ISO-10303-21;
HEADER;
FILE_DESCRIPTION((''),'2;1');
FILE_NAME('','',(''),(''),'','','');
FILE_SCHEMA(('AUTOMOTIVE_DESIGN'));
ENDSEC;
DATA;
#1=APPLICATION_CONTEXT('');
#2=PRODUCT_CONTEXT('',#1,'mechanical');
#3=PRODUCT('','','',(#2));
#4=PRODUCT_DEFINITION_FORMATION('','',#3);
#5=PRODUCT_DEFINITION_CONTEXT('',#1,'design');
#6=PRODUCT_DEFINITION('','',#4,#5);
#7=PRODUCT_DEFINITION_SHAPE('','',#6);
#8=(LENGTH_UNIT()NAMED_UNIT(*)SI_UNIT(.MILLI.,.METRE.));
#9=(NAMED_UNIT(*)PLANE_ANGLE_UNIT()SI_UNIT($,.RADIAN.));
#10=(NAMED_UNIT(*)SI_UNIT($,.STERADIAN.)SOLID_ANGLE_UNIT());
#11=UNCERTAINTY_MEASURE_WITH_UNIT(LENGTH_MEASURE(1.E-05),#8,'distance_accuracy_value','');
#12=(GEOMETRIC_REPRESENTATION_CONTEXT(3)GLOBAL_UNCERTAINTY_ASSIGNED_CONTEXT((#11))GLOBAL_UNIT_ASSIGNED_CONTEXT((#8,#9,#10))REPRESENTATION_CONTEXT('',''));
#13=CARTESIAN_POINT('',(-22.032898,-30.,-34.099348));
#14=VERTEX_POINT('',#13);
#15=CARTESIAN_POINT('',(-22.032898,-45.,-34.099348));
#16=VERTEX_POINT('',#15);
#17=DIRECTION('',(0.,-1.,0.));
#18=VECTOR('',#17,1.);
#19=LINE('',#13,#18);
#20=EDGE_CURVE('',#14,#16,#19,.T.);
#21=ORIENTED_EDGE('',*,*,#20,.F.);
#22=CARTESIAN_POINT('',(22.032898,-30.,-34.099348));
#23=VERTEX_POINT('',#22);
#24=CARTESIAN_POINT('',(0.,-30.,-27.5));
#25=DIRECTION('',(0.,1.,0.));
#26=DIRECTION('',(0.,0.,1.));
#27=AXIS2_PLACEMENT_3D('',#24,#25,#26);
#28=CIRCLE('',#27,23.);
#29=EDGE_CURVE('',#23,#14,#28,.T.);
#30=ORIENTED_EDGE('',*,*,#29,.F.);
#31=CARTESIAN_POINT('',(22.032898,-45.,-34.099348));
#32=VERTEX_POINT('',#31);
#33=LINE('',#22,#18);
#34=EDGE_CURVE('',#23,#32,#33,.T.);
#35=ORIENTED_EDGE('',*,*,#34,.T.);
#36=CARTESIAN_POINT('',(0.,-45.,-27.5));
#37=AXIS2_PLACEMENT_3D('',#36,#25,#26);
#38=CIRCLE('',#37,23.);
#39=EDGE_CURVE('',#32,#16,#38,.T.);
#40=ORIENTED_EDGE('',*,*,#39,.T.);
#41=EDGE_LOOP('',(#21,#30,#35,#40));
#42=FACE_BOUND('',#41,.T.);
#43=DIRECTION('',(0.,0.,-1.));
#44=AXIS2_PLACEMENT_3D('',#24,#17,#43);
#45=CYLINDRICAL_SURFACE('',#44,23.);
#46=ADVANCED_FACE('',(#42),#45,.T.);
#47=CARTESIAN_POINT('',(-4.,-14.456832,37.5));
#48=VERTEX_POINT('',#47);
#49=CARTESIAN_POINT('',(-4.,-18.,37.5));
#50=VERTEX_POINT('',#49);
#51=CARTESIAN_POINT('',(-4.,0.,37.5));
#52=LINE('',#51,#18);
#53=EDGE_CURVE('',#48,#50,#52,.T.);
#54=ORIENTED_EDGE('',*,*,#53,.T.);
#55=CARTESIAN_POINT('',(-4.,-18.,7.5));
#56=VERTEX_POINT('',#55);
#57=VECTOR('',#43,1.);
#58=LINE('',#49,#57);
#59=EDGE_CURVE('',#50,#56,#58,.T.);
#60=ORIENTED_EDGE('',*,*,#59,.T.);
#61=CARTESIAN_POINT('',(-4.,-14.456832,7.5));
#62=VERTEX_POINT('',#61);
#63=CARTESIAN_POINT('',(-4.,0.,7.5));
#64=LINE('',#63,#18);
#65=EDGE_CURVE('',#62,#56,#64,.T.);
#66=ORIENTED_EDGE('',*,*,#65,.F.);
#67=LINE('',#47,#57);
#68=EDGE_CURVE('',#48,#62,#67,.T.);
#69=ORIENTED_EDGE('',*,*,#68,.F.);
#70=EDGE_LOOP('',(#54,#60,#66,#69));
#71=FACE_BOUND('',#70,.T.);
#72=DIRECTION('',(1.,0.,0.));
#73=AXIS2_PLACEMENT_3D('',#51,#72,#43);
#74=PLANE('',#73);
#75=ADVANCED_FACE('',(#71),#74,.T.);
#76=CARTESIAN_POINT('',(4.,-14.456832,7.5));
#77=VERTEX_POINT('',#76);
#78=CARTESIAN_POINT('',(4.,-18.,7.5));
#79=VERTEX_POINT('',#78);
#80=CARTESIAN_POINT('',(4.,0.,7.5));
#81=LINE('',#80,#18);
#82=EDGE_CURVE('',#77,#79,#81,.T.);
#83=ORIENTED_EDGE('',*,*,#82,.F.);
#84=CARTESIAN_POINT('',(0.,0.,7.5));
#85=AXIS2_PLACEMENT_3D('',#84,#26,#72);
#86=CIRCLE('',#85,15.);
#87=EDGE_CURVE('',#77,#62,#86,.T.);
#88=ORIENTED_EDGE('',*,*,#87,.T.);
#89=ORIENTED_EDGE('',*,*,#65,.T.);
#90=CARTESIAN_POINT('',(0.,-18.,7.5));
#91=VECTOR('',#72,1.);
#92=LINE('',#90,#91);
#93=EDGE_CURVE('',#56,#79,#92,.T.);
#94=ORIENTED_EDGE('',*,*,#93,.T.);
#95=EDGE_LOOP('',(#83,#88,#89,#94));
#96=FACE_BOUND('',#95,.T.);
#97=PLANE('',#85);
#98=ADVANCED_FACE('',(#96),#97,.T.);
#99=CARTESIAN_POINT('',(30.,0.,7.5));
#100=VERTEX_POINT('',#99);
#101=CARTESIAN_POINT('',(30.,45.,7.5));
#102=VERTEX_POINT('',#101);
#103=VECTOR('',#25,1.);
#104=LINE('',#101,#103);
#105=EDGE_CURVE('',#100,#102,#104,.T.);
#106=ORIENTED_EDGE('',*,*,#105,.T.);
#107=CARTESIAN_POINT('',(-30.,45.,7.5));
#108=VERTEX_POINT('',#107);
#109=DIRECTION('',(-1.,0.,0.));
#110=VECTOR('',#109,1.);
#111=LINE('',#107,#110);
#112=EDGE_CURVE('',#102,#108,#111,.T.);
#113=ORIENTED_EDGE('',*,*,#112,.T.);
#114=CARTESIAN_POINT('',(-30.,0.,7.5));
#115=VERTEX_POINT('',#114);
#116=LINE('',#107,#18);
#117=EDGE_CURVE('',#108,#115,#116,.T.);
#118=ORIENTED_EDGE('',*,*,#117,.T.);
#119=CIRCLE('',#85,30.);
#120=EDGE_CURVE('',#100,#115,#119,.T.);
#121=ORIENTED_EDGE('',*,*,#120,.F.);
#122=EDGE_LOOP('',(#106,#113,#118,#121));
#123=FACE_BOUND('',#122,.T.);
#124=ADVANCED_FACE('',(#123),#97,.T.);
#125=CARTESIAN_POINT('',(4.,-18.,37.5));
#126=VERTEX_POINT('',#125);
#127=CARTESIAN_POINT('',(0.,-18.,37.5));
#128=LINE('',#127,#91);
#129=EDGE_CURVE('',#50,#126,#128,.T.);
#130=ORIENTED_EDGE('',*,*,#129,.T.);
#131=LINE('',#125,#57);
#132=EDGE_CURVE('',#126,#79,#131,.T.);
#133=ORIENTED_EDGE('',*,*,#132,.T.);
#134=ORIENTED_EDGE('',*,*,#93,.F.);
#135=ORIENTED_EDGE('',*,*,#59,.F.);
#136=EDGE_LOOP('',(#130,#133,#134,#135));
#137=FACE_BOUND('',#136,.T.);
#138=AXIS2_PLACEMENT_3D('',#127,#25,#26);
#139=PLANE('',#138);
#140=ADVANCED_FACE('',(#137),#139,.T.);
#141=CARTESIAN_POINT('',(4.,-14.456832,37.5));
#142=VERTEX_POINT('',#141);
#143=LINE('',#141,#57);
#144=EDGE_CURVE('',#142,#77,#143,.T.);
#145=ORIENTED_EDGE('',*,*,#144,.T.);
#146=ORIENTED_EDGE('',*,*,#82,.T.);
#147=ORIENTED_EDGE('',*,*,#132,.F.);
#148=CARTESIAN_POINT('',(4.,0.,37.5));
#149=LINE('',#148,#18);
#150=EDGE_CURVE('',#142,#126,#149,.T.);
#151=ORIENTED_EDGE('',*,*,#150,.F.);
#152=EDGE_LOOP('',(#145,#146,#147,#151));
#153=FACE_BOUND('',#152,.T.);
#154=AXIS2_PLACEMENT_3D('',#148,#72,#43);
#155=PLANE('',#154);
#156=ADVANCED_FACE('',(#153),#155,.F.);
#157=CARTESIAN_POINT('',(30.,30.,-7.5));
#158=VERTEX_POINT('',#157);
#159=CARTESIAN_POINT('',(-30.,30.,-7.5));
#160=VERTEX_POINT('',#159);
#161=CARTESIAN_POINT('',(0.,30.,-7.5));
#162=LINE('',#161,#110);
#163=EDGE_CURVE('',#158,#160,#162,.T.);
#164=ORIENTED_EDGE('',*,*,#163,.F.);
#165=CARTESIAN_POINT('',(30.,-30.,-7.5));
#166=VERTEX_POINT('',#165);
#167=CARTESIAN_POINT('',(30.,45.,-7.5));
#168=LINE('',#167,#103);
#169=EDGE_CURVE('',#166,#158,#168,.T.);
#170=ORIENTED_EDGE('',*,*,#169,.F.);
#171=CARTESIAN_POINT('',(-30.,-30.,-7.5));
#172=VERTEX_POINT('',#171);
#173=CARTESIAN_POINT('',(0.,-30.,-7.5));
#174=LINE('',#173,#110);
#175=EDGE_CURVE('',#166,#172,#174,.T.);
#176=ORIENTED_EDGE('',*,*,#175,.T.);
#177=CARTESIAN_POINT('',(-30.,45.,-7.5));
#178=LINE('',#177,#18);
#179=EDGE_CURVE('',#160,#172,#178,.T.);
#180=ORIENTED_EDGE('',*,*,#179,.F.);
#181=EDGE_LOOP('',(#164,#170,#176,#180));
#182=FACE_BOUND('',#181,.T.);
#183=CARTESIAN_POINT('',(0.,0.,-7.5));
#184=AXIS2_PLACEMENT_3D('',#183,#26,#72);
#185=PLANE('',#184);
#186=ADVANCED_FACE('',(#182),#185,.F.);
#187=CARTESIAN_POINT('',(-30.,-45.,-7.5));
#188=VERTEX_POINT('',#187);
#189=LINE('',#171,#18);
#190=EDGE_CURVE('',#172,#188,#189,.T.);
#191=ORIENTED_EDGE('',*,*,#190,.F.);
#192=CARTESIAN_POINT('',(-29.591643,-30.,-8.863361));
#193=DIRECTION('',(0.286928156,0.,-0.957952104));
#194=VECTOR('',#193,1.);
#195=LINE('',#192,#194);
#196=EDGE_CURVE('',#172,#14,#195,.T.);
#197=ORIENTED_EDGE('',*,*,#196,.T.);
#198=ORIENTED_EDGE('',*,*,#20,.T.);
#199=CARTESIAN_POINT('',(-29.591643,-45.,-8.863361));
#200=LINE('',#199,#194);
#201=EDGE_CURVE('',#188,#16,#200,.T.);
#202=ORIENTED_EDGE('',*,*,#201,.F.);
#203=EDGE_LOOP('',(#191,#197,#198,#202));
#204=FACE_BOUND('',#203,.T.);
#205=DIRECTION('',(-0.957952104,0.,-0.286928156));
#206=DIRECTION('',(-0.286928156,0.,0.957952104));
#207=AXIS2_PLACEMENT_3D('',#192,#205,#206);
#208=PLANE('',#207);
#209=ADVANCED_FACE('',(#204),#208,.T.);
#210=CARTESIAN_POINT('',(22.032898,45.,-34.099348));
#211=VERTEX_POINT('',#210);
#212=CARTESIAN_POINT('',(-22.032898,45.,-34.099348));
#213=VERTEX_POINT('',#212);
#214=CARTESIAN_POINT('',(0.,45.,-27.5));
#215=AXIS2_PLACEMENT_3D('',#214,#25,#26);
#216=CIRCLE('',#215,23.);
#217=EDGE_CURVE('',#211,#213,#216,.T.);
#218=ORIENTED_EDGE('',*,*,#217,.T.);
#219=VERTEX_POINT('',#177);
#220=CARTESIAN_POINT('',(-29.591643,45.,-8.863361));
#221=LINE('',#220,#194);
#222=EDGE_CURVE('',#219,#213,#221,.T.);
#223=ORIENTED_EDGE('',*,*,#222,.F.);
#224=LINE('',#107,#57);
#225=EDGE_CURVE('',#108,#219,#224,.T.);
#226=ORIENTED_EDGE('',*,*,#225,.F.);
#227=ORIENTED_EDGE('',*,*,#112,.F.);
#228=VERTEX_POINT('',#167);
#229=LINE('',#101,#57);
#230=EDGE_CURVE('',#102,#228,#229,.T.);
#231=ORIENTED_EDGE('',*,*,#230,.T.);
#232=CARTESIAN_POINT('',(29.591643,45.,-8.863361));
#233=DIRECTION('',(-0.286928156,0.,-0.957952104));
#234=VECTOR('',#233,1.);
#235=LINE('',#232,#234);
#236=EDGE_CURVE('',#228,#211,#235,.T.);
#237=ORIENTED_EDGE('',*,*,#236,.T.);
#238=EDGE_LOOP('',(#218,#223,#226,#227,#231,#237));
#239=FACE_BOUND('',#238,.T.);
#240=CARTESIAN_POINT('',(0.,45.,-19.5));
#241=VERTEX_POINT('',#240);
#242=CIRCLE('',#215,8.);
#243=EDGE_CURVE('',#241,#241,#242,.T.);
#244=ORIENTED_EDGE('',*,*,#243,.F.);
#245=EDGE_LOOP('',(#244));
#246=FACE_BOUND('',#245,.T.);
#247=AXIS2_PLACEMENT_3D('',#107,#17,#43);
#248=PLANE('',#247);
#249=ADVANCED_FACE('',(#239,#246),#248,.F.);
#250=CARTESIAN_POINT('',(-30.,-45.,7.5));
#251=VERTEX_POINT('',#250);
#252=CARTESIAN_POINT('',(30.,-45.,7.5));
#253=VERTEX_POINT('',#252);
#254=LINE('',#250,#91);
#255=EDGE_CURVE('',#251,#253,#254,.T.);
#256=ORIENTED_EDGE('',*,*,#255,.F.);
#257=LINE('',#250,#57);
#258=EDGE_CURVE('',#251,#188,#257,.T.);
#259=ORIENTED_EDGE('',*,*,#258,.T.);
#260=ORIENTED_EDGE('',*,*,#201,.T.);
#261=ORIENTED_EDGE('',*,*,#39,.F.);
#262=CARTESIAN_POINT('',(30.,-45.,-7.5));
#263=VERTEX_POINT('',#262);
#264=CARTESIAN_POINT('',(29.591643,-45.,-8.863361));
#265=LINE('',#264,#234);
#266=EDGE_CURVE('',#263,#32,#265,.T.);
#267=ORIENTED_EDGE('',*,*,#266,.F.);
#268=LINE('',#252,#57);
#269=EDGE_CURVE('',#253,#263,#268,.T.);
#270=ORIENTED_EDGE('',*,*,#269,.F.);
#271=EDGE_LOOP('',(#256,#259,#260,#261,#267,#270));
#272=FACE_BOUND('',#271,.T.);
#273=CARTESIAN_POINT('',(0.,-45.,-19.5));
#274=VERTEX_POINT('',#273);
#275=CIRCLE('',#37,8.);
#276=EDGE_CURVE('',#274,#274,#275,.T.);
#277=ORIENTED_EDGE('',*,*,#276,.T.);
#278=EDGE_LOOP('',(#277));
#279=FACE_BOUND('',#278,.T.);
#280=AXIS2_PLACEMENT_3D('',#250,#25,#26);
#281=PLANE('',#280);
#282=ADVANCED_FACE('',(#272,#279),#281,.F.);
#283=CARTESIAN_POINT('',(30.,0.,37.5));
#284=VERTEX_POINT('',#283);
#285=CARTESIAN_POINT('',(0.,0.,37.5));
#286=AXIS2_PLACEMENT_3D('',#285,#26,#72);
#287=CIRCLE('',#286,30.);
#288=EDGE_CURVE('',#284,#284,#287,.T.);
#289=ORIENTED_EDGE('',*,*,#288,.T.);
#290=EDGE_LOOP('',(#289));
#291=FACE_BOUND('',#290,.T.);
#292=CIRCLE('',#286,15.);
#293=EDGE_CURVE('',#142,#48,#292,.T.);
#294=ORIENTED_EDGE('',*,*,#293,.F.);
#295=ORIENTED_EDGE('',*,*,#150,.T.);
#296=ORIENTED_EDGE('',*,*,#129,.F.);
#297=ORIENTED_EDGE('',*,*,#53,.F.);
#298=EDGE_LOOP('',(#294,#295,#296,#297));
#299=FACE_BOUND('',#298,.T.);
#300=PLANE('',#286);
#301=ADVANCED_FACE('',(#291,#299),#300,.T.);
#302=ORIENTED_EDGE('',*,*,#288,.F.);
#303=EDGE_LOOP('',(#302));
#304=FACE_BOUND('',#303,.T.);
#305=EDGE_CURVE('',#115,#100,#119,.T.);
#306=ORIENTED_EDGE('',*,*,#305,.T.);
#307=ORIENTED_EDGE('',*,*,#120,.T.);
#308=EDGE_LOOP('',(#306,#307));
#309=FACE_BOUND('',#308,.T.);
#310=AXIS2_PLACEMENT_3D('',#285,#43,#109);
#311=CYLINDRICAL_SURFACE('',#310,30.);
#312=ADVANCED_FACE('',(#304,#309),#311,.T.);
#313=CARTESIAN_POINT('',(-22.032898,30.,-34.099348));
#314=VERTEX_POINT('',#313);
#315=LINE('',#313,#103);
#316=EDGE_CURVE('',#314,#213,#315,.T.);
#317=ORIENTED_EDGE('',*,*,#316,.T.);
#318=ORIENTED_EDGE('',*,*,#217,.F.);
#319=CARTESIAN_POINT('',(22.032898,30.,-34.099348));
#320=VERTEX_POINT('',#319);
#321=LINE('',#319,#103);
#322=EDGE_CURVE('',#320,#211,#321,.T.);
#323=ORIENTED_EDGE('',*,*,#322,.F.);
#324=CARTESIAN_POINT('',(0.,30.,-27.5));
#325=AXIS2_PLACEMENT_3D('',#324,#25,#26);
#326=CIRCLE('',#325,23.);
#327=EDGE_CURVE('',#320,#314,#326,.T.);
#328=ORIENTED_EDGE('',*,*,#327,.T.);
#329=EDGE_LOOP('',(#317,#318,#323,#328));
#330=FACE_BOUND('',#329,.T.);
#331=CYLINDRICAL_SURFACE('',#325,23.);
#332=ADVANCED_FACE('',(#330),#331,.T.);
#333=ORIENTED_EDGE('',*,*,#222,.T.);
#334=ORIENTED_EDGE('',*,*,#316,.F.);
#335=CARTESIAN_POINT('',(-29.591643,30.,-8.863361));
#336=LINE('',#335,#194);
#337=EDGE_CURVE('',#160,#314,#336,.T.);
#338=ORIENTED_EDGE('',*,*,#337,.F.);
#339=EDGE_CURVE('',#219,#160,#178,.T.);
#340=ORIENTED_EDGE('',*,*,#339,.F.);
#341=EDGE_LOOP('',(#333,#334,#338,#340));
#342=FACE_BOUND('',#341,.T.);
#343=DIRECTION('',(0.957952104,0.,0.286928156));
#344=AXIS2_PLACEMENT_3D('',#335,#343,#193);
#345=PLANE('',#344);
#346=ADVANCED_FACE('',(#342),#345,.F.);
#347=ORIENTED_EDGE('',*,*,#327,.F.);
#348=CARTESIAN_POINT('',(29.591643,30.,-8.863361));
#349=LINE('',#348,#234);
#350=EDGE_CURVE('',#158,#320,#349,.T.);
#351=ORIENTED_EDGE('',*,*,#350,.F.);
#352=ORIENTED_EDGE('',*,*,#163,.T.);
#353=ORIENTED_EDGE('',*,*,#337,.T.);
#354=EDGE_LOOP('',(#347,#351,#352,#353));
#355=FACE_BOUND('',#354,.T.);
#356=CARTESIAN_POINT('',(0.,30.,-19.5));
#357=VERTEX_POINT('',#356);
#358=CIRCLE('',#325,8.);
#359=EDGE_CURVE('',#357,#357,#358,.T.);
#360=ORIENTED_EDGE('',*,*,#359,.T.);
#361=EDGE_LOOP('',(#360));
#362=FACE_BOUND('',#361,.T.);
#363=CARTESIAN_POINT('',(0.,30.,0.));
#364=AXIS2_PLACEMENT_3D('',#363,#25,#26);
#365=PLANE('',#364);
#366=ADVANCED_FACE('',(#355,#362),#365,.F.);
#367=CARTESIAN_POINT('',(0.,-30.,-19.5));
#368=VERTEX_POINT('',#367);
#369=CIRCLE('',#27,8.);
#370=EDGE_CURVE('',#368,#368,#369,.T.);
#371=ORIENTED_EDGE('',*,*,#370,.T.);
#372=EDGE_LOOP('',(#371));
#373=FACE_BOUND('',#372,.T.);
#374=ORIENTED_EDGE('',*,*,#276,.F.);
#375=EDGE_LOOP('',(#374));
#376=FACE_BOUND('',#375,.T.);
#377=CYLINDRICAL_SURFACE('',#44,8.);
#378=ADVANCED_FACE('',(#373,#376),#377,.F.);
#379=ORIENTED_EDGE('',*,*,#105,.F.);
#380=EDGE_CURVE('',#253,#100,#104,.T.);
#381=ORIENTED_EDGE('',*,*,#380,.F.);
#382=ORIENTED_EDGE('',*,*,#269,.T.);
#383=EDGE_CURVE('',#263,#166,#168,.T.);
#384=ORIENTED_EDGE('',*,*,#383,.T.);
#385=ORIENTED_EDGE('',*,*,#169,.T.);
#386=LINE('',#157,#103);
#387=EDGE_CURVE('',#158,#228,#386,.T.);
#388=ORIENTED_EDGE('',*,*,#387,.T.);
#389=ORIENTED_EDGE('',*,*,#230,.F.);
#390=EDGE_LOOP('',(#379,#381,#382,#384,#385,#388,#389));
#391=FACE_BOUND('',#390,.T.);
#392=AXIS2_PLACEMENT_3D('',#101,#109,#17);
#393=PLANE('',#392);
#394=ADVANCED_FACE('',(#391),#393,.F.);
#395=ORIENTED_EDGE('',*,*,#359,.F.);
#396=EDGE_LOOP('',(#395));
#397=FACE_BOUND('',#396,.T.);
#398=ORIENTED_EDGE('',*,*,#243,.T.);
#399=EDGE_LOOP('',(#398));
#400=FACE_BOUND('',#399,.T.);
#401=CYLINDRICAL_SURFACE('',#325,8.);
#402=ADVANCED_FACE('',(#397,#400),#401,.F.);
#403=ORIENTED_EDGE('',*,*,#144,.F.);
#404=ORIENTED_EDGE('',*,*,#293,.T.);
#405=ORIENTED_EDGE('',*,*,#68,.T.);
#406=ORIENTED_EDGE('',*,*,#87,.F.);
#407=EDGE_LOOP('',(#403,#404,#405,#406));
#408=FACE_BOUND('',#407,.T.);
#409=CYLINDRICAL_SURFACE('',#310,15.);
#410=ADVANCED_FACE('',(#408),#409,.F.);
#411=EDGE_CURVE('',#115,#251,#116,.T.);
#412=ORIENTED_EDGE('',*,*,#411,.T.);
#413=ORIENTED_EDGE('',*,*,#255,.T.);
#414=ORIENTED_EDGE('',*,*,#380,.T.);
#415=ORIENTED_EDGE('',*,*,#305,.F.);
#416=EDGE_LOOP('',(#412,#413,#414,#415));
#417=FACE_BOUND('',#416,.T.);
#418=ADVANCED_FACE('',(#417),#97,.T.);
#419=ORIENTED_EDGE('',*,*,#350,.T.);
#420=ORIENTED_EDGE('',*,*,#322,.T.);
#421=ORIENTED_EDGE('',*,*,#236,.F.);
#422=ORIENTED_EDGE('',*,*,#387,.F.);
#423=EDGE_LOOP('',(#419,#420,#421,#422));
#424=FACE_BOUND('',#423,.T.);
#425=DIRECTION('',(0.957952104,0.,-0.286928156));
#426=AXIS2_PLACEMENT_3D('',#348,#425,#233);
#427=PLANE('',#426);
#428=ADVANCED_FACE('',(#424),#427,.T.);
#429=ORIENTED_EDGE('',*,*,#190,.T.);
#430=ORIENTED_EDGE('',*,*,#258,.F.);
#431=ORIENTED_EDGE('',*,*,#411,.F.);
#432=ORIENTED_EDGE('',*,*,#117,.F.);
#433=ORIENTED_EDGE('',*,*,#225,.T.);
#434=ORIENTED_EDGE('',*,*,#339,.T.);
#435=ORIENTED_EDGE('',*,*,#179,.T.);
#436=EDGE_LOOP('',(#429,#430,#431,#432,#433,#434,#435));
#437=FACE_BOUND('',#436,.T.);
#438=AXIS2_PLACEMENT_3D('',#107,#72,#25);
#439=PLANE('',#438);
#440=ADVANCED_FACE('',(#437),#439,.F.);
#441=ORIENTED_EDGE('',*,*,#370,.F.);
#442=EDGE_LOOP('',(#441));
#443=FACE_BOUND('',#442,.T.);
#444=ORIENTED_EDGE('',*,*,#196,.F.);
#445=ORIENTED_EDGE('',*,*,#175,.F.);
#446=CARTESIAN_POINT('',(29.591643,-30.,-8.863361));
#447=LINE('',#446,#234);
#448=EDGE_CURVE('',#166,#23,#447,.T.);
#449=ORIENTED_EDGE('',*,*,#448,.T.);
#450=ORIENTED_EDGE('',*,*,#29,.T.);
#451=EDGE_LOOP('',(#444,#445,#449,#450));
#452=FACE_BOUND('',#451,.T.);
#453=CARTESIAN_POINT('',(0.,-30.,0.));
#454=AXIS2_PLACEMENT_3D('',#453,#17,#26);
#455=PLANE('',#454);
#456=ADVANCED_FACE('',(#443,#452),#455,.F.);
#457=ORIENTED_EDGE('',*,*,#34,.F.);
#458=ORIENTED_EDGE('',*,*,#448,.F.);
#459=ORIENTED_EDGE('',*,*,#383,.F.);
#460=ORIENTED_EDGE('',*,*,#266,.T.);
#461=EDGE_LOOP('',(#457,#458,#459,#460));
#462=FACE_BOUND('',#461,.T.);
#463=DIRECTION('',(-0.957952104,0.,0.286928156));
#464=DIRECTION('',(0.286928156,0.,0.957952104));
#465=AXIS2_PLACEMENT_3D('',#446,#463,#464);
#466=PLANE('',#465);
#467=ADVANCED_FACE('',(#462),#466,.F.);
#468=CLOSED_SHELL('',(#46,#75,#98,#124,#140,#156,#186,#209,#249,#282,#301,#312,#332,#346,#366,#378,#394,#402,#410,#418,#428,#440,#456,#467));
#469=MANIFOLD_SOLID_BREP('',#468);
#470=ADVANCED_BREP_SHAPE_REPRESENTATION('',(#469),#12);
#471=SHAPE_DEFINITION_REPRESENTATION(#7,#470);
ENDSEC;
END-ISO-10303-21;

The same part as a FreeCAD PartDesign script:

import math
import FreeCAD as App
import Part
import Sketcher

V = App.Vector
Q = App.Units.Quantity

doc = App.newDocument("Part")
body = doc.addObject("PartDesign::Body", "Body")

sketch1 = body.newObject("Sketcher::SketchObject", "Sketch")
sketch1.AttachmentSupport = (doc.getObject("XY_Plane"), [""])
sketch1.MapMode = "FlatFace"
sketch1.addGeometry([
    Part.LineSegment(V(-30, 45, 0), V(-30, -45, 0)),
    Part.LineSegment(V(-30, -45, 0), V(30, -45, 0)),
    Part.LineSegment(V(30, -45, 0), V(30, 45, 0)),
    Part.LineSegment(V(30, 45, 0), V(-30, 45, 0)),
], False)
sketch1.addConstraint([
    Sketcher.Constraint("Coincident", 0, 2, 1, 1),
    Sketcher.Constraint("Coincident", 1, 2, 2, 1),
    Sketcher.Constraint("Coincident", 2, 2, 3, 1),
    Sketcher.Constraint("Coincident", 3, 2, 0, 1),
    Sketcher.Constraint("Vertical", 0),
    Sketcher.Constraint("Horizontal", 1),
    Sketcher.Constraint("Vertical", 2),
    Sketcher.Constraint("Horizontal", 3),
    Sketcher.Constraint("Symmetric", 0, 2, 2, 2, -1, 1),
    Sketcher.Constraint("DistanceX", 1, 1, 1, 2, Q("60 mm")),
    Sketcher.Constraint("DistanceY", 0, 2, 0, 1, Q("90 mm")),
])
pad1 = body.newObject("PartDesign::Pad", "Pad")
pad1.Profile = sketch1
pad1.Length = 15
pad1.Midplane = True

sketch2 = body.newObject("Sketcher::SketchObject", "Sketch001")
sketch2.AttachmentSupport = (doc.getObject("XY_Plane"), [""])
sketch2.MapMode = "FlatFace"
sketch2.AttachmentOffset = App.Placement(V(0, 0, 7.5), App.Rotation())
sketch2.addGeometry([
    Part.Circle(V(0, 0, 0), V(0, 0, 1), 30),
    Part.LineSegment(V(4, -14.5, 0), V(4, -18, 0)),
    Part.LineSegment(V(4, -18, 0), V(-4, -18, 0)),
    Part.LineSegment(V(-4, -18, 0), V(-4, -14.5, 0)),
    Part.ArcOfCircle(Part.Circle(V(0, 0, 0), V(0, 0, 1), 15), math.radians(0), math.radians(255)),
    Part.ArcOfCircle(Part.Circle(V(0, 0, 0), V(0, 0, 1), 15), math.radians(-75), math.radians(0)),
], False)
sketch2.addConstraint([
    Sketcher.Constraint("Coincident", 1, 2, 2, 1),
    Sketcher.Constraint("Coincident", 2, 2, 3, 1),
    Sketcher.Constraint("Coincident", 3, 2, 4, 2),
    Sketcher.Constraint("Tangent", 4, 1, 5, 2),
    Sketcher.Constraint("Coincident", 5, 1, 1, 1),
    Sketcher.Constraint("Vertical", 1),
    Sketcher.Constraint("Horizontal", 2),
    Sketcher.Constraint("Vertical", 3),
    Sketcher.Constraint("Coincident", 0, 3, -1, 1),
    Sketcher.Constraint("Coincident", 4, 3, -1, 1),
    Sketcher.Constraint("Equal", 4, 5),
    Sketcher.Constraint("PointOnObject", 4, 1, -1),
    Sketcher.Constraint("Horizontal", 3, 2, 5, 1),
    Sketcher.Constraint("Diameter", 0, Q("60 mm")),
    Sketcher.Constraint("Radius", 4, Q("15 mm")),
    Sketcher.Constraint("DistanceX", 2, 2, 2, 1, Q("8 mm")),
    Sketcher.Constraint("DistanceY", 1, 2, -1, 1, Q("18 mm")),
])
pad2 = body.newObject("PartDesign::Pad", "Pad001")
pad2.Profile = sketch2
pad2.Length = 30

sketch3 = body.newObject("Sketcher::SketchObject", "Sketch002")
sketch3.AttachmentSupport = (doc.getObject("XZ_Plane"), [""])
sketch3.MapMode = "FlatFace"
sketch3.AttachmentOffset = App.Placement(V(0, 0, -45), App.Rotation())
sketch3.addGeometry([
    Part.LineSegment(V(-22, -34, 0), V(-30, -8, 0)),
    Part.LineSegment(V(-30, -8, 0), V(30, -8, 0)),
    Part.LineSegment(V(30, -8, 0), V(22, -34, 0)),
    Part.ArcOfCircle(Part.Circle(V(0, -28, 0), V(0, 0, 1), 23), math.radians(-163), math.radians(-17)),
    Part.Circle(V(0, -28, 0), V(0, 0, 1), 8),
], False)
sketch3.addConstraint([
    Sketcher.Constraint("Coincident", 0, 2, 1, 1),
    Sketcher.Constraint("Coincident", 1, 2, 2, 1),
    Sketcher.Constraint("Tangent", 2, 2, 3, 2),
    Sketcher.Constraint("Tangent", 3, 1, 0, 1),
    Sketcher.Constraint("Horizontal", 1),
    Sketcher.Constraint("Coincident", 4, 3, 3, 3),
    Sketcher.Constraint("Symmetric", 2, 2, 3, 1, -2),
    Sketcher.Constraint("Diameter", 4, Q("16 mm")),
    Sketcher.Constraint("Radius", 3, Q("23 mm")),
    Sketcher.Constraint("DistanceX", 1, 1, 1, 2, Q("60 mm")),
    Sketcher.Constraint("DistanceY", 3, 3, 0, 2, Q("20 mm")),
    Sketcher.Constraint("DistanceY", 3, 3, -1, 1, Q("27.5 mm")),
])
pad3 = body.newObject("PartDesign::Pad", "Pad002")
pad3.Profile = sketch3
pad3.Length = 15
doc.recompute()

mirrored = body.newObject("PartDesign::Mirrored", "Mirrored")
mirrored.Originals = [pad3]
mirrored.MirrorPlane = (doc.getObject("XZ_Plane"), [""])
body.Tip = mirrored

doc.recompute()
